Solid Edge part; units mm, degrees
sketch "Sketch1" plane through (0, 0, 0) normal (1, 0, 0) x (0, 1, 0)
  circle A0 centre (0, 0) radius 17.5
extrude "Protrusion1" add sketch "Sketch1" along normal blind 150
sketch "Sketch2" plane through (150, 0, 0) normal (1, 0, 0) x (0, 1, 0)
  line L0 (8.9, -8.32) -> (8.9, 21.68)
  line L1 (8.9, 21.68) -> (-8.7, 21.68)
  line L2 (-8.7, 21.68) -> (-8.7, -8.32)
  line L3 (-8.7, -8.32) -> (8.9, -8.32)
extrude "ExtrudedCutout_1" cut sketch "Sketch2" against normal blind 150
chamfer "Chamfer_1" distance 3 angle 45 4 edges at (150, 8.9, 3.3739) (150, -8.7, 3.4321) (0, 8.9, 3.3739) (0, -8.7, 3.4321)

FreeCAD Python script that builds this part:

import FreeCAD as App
import Part
import Sketcher

V = App.Vector
Q = App.Units.Quantity


def edges_at(feature, points):
    """Names of the edges that pass closest to the given points."""
    edges = feature.Shape.Edges
    near = lambda p: min(range(len(edges)), key=lambda i: edges[i].distToShape(Part.Vertex(*p))[0])
    return sorted({f"Edge{near(p) + 1}" for p in points})

doc = App.newDocument("Part")
body = doc.addObject("PartDesign::Body", "Body")

sketch1 = body.newObject("Sketcher::SketchObject", "Sketch")
sketch1.AttachmentSupport = (doc.getObject("YZ_Plane"), [""])
sketch1.MapMode = "FlatFace"
sketch1.addGeometry(Part.Circle(V(0, 0, 0), V(0, 0, 1), 18), False)
sketch1.addConstraint([
    Sketcher.Constraint("Coincident", 0, 3, -1, 1),
    Sketcher.Constraint("Diameter", 0, Q("35 mm")),
])
pad1 = body.newObject("PartDesign::Pad", "Pad")
pad1.Profile = sketch1
pad1.Length = 150

sketch2 = body.newObject("Sketcher::SketchObject", "Sketch001")
sketch2.AttachmentSupport = (doc.getObject("YZ_Plane"), [""])
sketch2.MapMode = "FlatFace"
sketch2.AttachmentOffset = App.Placement(V(0, 0, 150), App.Rotation())
sketch2.addGeometry([
    Part.LineSegment(V(-9, -8, 0), V(9, -8, 0)),
    Part.LineSegment(V(9, -8, 0), V(9, 22, 0)),
    Part.LineSegment(V(9, 22, 0), V(-9, 22, 0)),
    Part.LineSegment(V(-9, 22, 0), V(-9, -8, 0)),
], False)
sketch2.addConstraint([
    Sketcher.Constraint("Coincident", 0, 2, 1, 1),
    Sketcher.Constraint("Coincident", 1, 2, 2, 1),
    Sketcher.Constraint("Coincident", 2, 2, 3, 1),
    Sketcher.Constraint("Coincident", 3, 2, 0, 1),
    Sketcher.Constraint("Horizontal", 0),
    Sketcher.Constraint("Vertical", 1),
    Sketcher.Constraint("Horizontal", 2),
    Sketcher.Constraint("Vertical", 3),
    Sketcher.Constraint("DistanceY", 1, 1, 1, 2, Q("30 mm")),
    Sketcher.Constraint("DistanceX", 0, 1, 0, 2, Q("17.6 mm")),
    Sketcher.Constraint("DistanceX", -1, 1, 0, 2, Q("8.9 mm")),
    Sketcher.Constraint("DistanceY", 0, 2, -1, 1, Q("8.32 mm")),
])
pocket1 = body.newObject("PartDesign::Pocket", "Pocket")
pocket1.Profile = sketch2
pocket1.Length = 150
doc.recompute()

chamfer = body.newObject("PartDesign::Chamfer", "Chamfer")
chamfer.Base = (pocket1, edges_at(pocket1, [
    (150, 8.9, 3.374),
    (150, -8.7, 3.432),
    (0, 8.9, 3.374),
    (0, -8.7, 3.432),
]))
chamfer.Size = 3

doc.recompute()
